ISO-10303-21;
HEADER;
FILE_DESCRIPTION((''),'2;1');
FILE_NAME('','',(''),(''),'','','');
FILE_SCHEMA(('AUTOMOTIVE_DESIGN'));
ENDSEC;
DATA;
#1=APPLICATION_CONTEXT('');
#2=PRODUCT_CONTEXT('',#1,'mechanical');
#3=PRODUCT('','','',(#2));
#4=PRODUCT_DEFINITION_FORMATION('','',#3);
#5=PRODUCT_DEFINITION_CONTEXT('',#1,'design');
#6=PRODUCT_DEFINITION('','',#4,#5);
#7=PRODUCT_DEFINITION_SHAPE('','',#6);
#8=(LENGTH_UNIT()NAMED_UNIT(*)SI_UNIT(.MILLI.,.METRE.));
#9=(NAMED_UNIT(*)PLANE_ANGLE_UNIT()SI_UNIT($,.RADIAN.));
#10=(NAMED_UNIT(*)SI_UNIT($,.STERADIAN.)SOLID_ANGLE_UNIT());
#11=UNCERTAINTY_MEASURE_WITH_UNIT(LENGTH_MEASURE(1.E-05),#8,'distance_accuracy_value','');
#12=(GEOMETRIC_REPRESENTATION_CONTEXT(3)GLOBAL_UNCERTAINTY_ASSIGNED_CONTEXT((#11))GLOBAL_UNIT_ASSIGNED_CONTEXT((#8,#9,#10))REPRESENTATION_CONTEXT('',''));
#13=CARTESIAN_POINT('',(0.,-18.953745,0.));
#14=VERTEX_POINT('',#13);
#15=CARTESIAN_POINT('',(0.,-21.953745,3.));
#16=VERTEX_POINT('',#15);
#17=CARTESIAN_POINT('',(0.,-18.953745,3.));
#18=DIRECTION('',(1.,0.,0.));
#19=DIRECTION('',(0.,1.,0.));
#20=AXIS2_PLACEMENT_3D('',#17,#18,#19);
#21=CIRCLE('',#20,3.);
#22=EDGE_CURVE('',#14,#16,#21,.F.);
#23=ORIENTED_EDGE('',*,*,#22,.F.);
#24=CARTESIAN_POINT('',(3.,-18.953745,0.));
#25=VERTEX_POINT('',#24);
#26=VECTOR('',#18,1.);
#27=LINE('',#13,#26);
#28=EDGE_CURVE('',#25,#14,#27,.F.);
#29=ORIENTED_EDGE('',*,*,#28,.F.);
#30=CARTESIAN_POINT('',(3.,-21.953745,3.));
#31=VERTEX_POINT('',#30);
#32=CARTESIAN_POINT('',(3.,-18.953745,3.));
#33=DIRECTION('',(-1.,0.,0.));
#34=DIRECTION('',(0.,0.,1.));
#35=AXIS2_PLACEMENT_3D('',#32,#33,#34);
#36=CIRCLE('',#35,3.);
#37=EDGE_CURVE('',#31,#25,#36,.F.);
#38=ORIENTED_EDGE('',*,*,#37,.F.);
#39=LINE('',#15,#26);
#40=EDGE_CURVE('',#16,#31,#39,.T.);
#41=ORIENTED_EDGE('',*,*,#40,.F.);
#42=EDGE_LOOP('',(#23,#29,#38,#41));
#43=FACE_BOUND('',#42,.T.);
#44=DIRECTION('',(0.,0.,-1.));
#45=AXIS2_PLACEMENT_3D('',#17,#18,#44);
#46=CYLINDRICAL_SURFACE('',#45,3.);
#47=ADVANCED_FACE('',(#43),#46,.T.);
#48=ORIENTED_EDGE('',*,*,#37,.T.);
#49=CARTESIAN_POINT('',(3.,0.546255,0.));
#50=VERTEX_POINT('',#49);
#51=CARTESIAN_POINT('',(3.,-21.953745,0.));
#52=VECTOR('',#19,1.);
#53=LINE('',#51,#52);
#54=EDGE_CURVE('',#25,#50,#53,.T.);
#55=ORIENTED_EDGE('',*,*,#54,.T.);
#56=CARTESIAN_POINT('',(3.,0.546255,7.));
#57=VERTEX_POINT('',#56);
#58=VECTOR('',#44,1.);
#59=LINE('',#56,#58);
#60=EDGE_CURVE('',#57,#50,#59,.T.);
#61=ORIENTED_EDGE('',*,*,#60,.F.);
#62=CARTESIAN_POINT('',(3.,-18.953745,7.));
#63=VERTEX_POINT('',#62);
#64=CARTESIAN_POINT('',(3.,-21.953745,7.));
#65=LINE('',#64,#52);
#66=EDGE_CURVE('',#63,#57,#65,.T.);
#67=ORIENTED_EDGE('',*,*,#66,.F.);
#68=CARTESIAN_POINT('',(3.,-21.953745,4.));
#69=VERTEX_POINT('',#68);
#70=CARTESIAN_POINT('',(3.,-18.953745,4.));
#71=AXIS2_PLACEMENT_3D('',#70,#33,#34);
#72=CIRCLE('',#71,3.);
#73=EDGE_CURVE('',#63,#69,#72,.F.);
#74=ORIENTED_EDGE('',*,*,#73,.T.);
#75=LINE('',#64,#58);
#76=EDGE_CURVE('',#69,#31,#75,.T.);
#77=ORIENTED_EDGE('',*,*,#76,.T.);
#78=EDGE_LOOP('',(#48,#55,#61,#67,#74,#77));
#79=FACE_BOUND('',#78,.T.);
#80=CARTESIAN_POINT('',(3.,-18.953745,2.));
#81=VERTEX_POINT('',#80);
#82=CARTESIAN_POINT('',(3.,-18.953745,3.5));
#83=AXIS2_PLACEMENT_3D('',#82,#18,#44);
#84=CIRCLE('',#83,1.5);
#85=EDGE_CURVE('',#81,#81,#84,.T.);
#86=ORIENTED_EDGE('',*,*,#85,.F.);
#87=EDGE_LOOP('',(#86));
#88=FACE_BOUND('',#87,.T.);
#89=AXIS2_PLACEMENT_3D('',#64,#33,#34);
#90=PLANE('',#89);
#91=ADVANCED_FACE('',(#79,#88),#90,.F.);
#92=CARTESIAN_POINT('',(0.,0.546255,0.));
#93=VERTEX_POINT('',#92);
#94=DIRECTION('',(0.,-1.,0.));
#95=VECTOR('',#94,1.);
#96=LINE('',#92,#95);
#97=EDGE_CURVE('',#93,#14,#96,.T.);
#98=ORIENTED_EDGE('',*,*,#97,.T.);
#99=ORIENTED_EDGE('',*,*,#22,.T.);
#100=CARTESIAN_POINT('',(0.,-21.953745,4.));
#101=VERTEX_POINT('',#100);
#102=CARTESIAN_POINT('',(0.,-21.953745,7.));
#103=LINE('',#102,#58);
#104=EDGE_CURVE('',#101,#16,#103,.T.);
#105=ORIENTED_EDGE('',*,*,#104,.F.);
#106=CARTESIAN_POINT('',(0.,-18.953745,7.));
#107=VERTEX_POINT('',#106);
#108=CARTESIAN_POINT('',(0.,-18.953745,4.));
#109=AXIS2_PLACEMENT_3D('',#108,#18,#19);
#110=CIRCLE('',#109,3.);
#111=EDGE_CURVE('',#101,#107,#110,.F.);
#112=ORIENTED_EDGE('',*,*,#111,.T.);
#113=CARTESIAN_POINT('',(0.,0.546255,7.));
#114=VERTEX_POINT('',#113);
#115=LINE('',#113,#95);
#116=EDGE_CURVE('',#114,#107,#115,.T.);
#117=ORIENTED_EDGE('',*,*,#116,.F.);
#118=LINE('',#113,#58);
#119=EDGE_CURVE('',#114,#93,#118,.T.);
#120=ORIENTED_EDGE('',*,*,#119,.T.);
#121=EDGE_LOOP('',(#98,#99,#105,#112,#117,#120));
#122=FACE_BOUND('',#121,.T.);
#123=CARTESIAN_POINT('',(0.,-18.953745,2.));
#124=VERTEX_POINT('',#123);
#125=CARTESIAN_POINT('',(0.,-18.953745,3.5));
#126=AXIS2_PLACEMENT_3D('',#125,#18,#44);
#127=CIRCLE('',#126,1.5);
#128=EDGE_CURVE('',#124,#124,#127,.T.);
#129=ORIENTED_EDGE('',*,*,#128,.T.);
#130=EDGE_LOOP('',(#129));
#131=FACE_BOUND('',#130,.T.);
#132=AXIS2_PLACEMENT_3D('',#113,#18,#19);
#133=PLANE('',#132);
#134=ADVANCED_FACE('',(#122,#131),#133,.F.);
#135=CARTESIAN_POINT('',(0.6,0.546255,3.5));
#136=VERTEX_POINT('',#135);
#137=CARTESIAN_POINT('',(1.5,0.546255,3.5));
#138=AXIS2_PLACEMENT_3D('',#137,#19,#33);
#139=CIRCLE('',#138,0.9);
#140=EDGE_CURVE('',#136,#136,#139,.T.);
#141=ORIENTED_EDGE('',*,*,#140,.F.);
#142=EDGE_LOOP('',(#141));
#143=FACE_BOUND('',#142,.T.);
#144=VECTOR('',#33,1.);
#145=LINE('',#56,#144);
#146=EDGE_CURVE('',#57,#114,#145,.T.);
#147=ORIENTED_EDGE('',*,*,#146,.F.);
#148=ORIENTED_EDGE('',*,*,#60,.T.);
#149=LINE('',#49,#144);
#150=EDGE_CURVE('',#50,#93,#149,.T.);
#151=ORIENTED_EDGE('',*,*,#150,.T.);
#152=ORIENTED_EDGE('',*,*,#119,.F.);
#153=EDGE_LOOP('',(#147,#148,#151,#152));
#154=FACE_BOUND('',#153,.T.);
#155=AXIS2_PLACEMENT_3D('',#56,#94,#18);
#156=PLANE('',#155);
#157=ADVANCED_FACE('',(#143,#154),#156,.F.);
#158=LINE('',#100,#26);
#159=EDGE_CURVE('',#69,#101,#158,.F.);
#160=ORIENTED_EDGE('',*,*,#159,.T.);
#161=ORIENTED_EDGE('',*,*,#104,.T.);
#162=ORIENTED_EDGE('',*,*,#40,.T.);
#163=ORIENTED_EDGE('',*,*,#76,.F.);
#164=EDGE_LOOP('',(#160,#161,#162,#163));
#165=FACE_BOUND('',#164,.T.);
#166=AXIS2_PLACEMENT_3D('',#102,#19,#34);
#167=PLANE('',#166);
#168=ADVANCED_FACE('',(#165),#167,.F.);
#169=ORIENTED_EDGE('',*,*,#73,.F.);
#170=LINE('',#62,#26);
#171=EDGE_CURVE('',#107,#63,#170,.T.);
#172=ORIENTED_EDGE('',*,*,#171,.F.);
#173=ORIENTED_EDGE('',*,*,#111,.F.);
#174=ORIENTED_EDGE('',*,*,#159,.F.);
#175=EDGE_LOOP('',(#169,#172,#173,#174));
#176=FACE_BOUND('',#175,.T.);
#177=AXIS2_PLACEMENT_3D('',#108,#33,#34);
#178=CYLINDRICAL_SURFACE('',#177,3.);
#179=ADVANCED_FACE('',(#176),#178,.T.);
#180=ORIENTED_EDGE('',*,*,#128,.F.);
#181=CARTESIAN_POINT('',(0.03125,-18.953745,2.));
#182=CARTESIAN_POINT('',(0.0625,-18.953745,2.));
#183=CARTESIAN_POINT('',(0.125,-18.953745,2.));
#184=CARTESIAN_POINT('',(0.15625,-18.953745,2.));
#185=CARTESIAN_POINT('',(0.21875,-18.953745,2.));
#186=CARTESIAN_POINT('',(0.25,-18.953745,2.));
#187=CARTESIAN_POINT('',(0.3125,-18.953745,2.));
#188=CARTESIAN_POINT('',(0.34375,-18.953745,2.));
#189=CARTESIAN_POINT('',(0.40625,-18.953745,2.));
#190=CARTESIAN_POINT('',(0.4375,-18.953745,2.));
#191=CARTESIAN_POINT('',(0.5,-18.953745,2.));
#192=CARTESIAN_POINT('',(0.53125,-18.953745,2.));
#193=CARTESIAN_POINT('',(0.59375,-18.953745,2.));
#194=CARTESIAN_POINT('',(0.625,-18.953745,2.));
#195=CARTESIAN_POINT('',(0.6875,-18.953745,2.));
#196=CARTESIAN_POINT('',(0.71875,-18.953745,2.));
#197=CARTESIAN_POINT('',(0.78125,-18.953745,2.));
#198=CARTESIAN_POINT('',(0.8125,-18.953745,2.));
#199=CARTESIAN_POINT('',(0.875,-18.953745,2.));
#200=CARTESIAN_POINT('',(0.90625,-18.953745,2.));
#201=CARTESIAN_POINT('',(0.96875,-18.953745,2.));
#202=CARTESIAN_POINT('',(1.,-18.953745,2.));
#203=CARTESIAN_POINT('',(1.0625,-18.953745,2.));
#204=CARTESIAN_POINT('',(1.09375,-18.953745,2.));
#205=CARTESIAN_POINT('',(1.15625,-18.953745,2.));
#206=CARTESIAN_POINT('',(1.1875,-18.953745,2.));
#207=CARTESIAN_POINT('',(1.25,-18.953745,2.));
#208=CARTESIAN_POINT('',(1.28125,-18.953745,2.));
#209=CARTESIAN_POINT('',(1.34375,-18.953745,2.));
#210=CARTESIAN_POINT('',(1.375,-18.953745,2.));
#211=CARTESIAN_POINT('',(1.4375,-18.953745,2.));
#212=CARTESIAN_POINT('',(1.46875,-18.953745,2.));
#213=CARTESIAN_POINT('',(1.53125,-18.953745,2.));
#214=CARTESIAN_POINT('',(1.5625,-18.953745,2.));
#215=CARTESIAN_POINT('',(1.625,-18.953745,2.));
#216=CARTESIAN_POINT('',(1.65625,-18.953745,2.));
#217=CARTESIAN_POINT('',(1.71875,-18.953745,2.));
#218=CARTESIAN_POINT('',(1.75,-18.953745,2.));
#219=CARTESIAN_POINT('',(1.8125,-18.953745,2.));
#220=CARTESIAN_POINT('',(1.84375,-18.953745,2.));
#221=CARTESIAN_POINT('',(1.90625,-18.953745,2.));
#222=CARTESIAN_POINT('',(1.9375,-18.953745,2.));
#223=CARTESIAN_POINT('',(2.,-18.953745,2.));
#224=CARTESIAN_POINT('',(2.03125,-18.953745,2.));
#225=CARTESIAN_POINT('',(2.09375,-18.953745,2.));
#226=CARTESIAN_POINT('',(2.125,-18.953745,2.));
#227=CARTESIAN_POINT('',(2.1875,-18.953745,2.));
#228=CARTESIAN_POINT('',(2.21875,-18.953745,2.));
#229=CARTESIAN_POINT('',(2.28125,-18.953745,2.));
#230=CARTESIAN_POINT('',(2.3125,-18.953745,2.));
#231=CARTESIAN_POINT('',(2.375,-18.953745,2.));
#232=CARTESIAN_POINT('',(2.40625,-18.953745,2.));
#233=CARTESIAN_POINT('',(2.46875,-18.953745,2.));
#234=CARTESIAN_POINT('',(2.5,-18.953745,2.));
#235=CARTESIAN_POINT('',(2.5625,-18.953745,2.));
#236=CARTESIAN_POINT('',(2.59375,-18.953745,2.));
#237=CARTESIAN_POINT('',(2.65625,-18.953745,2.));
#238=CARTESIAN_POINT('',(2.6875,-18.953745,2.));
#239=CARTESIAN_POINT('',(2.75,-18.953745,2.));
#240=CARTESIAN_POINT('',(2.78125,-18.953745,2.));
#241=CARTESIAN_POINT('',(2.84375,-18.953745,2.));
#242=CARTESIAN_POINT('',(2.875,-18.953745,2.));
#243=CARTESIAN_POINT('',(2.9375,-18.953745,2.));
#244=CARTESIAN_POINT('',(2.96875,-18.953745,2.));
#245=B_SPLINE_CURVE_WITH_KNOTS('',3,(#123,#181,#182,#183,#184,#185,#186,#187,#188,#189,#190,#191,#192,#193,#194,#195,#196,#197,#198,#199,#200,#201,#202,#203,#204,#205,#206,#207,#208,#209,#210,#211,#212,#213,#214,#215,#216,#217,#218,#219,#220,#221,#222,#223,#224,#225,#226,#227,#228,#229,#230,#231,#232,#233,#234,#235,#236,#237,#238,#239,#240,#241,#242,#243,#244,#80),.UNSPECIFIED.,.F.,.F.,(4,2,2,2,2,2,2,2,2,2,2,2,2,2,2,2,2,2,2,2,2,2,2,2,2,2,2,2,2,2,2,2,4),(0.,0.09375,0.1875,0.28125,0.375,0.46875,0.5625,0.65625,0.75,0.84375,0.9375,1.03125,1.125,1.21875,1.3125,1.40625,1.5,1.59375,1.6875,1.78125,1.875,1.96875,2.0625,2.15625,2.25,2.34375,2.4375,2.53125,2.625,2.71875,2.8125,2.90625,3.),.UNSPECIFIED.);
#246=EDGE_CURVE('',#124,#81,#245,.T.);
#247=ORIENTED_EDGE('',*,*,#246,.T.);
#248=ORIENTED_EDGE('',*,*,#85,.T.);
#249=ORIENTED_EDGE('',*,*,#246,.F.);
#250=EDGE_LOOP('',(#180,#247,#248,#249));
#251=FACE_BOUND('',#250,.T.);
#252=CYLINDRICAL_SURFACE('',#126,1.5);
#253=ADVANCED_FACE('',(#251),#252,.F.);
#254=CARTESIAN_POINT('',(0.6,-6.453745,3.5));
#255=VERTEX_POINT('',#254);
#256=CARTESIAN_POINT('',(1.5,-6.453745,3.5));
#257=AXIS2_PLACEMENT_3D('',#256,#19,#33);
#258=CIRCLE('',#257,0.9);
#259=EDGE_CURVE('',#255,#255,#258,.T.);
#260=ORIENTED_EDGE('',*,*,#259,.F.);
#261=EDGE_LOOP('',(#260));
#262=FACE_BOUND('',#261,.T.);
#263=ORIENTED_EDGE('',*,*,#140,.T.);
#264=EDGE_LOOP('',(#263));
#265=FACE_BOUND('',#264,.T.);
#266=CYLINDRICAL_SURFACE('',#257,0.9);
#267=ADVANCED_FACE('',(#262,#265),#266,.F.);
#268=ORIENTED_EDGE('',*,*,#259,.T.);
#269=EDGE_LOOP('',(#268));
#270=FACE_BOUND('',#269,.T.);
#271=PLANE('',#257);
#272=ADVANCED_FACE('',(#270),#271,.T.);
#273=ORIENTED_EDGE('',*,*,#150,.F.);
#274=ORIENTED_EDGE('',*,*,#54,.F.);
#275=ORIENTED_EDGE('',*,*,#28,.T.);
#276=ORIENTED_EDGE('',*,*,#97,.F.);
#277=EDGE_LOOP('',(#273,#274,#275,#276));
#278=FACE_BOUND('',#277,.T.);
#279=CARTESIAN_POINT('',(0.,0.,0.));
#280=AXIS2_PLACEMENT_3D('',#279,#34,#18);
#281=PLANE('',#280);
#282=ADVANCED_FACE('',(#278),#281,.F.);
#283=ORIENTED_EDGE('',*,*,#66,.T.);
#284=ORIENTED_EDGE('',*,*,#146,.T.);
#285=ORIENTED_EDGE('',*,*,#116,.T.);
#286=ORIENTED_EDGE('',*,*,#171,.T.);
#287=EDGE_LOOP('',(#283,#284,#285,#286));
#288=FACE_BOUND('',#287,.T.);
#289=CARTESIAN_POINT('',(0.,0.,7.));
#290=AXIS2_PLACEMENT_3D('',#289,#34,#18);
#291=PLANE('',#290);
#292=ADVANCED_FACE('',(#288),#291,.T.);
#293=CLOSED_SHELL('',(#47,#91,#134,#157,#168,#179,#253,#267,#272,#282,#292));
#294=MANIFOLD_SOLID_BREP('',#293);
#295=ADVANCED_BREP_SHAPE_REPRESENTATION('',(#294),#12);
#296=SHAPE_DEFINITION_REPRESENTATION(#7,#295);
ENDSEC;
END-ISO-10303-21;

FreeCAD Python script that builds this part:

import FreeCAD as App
import Part
import Sketcher

V = App.Vector
Q = App.Units.Quantity


def edges_at(feature, points):
    """Names of the edges that pass closest to the given points."""
    edges = feature.Shape.Edges
    near = lambda p: min(range(len(edges)), key=lambda i: edges[i].distToShape(Part.Vertex(*p))[0])
    return sorted({f"Edge{near(p) + 1}" for p in points})


def add_polygon(sketch, points):
    """Adds a closed chain of lines whose ends are joined by coincident constraints."""
    first, n = sketch.GeometryCount, len(points)
    for a, b in zip(points, points[1:] + points[:1]):
        sketch.addGeometry(Part.LineSegment(App.Vector(*a, 0), App.Vector(*b, 0)), False)
    for i in range(n):
        sketch.addConstraint(Sketcher.Constraint("Coincident", first + i, 2, first + (i + 1) % n, 1))

doc = App.newDocument("Part")
body = doc.addObject("PartDesign::Body", "Body")

sketch1 = body.newObject("Sketcher::SketchObject", "Sketch")
sketch1.AttachmentSupport = (doc.getObject("XY_Plane"), [""])
sketch1.MapMode = "FlatFace"
add_polygon(sketch1, [(0, 0.546255), (0, -21.953745), (3, -21.953745), (3, 0.546255)])
sketch1.addConstraint([
    Sketcher.Constraint("Vertical", 0),
    Sketcher.Constraint("Horizontal", 1),
    Sketcher.Constraint("Vertical", 2),
    Sketcher.Constraint("Horizontal", 3),
    Sketcher.Constraint("PointOnObject", 0, 2, -2),
    Sketcher.Constraint("DistanceX", 1, 1, 1, 2, Q("3 mm")),
    Sketcher.Constraint("DistanceY", 0, 2, 0, 1, Q("22.5 mm")),
    Sketcher.Constraint("DistanceY", 0, 2, -1, 1, Q("21.953745 mm")),
])
pad1 = body.newObject("PartDesign::Pad", "Pad")
pad1.Profile = sketch1
pad1.Length = 7

sketch2 = body.newObject("Sketcher::SketchObject", "Sketch001")
sketch2.AttachmentSupport = (doc.getObject("YZ_Plane"), [""])
sketch2.MapMode = "FlatFace"
sketch2.AttachmentOffset = App.Placement(V(0, 0, 3), App.Rotation())
sketch2.addGeometry(Part.Circle(V(-18.953745, 3.5, 0), V(0, 0, 1), 1.5), False)
sketch2.addConstraint([
    Sketcher.Constraint("Diameter", 0, Q("3 mm")),
    Sketcher.Constraint("DistanceY", -1, 1, 0, 3, Q("3.5 mm")),
    Sketcher.Constraint("DistanceX", 0, 3, -1, 1, Q("18.953745 mm")),
])
pocket1 = body.newObject("PartDesign::Pocket", "Pocket")
pocket1.Profile = sketch2
pocket1.Type = "ThroughAll"
doc.recompute()

fillet = body.newObject("PartDesign::Fillet", "Fillet")
fillet.Base = (pocket1, edges_at(pocket1, [(1.5, -21.954, 7), (1.5, -21.954, 0)]))
fillet.Radius = 3

sketch3 = body.newObject("Sketcher::SketchObject", "Sketch002")
sketch3.AttachmentSupport = (doc.getObject("XZ_Plane"), [""])
sketch3.MapMode = "FlatFace"
sketch3.AttachmentOffset = App.Placement(V(0, 0, -0.546255), App.Rotation())
sketch3.addGeometry(Part.Circle(V(1.5, 3.5, 0), V(0, 0, 1), 0.9), False)
sketch3.addConstraint([
    Sketcher.Constraint("Diameter", 0, Q("1.8 mm")),
    Sketcher.Constraint("DistanceX", -1, 1, 0, 3, Q("1.5 mm")),
    Sketcher.Constraint("DistanceY", -1, 1, 0, 3, Q("3.5 mm")),
])
pocket2 = body.newObject("PartDesign::Pocket", "Pocket001")
pocket2.Profile = sketch3
pocket2.Length = 7
pocket2.Reversed = True

doc.recompute()
